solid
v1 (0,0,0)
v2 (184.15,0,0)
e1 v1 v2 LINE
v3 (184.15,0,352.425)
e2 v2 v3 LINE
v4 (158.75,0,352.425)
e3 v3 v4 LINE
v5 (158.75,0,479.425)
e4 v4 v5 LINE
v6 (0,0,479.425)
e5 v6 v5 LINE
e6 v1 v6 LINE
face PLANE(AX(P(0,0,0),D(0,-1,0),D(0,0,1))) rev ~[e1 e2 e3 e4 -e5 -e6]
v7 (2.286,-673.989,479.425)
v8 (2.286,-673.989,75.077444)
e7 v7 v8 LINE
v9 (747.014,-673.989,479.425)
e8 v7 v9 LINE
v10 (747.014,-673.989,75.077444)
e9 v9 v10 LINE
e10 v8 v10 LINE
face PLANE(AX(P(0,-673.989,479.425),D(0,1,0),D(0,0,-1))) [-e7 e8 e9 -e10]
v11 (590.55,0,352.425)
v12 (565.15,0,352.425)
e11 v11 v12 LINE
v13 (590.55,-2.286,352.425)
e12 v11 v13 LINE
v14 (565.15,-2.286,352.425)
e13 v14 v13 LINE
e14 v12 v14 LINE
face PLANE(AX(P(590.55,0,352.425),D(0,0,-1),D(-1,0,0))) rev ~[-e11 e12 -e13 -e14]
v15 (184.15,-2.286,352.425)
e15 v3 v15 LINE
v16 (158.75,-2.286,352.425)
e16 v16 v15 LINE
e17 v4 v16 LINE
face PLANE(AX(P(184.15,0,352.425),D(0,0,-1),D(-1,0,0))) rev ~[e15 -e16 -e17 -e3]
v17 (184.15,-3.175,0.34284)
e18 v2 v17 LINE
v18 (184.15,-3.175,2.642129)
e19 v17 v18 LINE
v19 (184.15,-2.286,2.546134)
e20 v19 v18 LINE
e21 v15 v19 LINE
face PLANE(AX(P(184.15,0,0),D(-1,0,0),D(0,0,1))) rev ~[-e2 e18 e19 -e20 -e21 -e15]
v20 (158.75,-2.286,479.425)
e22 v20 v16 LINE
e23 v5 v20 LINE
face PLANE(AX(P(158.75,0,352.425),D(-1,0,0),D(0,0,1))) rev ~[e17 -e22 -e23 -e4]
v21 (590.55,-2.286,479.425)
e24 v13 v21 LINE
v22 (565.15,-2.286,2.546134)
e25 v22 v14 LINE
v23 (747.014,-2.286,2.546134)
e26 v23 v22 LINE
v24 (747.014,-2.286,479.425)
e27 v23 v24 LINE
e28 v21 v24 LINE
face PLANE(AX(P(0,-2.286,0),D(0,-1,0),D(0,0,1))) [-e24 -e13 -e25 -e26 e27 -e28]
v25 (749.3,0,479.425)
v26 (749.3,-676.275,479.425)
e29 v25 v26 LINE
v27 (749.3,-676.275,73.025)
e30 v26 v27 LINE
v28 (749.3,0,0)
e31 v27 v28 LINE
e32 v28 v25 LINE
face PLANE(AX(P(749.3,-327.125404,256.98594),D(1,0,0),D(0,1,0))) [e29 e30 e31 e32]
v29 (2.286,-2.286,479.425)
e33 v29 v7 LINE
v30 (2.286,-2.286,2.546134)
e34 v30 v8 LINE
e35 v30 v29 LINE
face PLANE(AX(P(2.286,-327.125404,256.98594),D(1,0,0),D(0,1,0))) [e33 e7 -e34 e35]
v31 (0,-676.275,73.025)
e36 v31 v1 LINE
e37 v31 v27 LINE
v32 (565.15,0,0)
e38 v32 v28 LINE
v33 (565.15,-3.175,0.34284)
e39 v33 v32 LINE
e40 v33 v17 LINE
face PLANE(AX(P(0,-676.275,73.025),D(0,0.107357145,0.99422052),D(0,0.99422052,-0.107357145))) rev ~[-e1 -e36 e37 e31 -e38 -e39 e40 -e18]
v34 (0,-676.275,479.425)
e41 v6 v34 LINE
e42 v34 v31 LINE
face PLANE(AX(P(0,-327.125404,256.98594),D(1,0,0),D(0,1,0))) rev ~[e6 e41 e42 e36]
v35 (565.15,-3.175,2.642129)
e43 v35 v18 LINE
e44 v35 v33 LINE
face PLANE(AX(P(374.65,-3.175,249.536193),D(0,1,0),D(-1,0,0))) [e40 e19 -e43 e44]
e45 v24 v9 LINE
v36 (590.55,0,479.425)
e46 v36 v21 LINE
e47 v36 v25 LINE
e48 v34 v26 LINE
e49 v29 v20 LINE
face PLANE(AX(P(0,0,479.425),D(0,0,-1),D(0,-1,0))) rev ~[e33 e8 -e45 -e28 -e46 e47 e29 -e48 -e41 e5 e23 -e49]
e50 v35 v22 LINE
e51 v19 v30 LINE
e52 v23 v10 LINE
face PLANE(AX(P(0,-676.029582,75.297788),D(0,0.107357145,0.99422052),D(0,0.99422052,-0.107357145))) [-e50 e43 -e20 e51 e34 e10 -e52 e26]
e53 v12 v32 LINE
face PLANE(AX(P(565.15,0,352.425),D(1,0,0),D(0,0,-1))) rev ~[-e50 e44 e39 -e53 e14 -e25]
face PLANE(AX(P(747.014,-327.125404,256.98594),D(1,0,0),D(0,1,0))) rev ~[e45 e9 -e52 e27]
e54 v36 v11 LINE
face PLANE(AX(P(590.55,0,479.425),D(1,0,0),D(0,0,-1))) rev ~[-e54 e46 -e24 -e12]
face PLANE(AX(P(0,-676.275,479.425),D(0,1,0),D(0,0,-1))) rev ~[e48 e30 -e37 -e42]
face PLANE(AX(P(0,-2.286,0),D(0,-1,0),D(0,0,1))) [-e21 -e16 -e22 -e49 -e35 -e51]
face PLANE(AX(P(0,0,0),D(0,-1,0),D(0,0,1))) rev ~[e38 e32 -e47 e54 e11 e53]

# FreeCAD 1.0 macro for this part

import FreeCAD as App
import Part
import Sketcher

V = App.Vector
Q = App.Units.Quantity


def faces_at(feature, points):
    """Names of the faces that lie closest to the given points."""
    faces = feature.Shape.Faces
    near = lambda p: min(range(len(faces)), key=lambda i: faces[i].distToShape(Part.Vertex(*p))[0])
    return sorted({f"Face{near(p) + 1}" for p in points})


def add_polygon(sketch, points):
    """Adds a closed chain of lines whose ends are joined by coincident constraints."""
    first, n = sketch.GeometryCount, len(points)
    for a, b in zip(points, points[1:] + points[:1]):
        sketch.addGeometry(Part.LineSegment(App.Vector(*a, 0), App.Vector(*b, 0)), False)
    for i in range(n):
        sketch.addConstraint(Sketcher.Constraint("Coincident", first + i, 2, first + (i + 1) % n, 1))

doc = App.newDocument("Part")
params = doc.addObject("Spreadsheet::Sheet", "Params")
for row, (alias, value) in enumerate([
    ("sketch1_height", "16 in"),
    ("sketch1_width", "26.625 in"),
    ("sketch1_height2", "18.875 in"),
    ("pad1_length", "29.5 in"),
    ("thickness_wall", "0.09 in"),
    ("sketch2_width", "17 in"),
    ("sketch2_width2", "1 in"),
    ("sketch2_height", "5 in"),
    ("sketch2_height2", "13.875 in"),
    ("pocket1_length", "0.125 in"),
], start=1):
    params.set(f"A{row}", alias)
    params.set(f"B{row}", "=" + value)
    params.setAlias(f"B{row}", alias)

body = doc.addObject("PartDesign::Body", "Body")

# Sketch on YZ plane
sketch1 = body.newObject("Sketcher::SketchObject", "Sketch")
sketch1.AttachmentSupport = (doc.getObject("YZ_Plane"), [""])
sketch1.MapMode = "FlatFace"
add_polygon(sketch1, [(-676, 73), (0, 0), (0, 479), (-676, 479)])  # lines 0-3
sketch1.addConstraint(Sketcher.Constraint("Vertical", 1))
sketch1.addConstraint(Sketcher.Constraint("Horizontal", 2))
sketch1.addConstraint(Sketcher.Constraint("Vertical", 3))
sketch1.addConstraint(Sketcher.Constraint("Coincident", 0, 2, -1, 1))
sketch1.addConstraint(Sketcher.Constraint("DistanceY", 3, 2, 3, 1, Q("16 in")))
sketch1.addConstraint(Sketcher.Constraint("DistanceX", 2, 2, 2, 1, Q("26.625 in")))
sketch1.addConstraint(Sketcher.Constraint("DistanceY", 1, 1, 1, 2, Q("18.875 in")))
sketch1.setExpression("Constraints[8]", "Params.sketch1_height")
sketch1.setExpression("Constraints[9]", "Params.sketch1_width")
sketch1.setExpression("Constraints[10]", "Params.sketch1_height2")
pad1 = body.newObject("PartDesign::Pad", "Pad")
pad1.Profile = sketch1
pad1.setExpression("Length", "Params.pad1_length")
doc.recompute()

thickness = body.newObject("PartDesign::Thickness", "Thickness")
thickness.Base = (pad1, faces_at(pad1, [(374.65, -338.137, 479.425)]))
thickness.setExpression("Value", "Params.thickness_wall")
thickness.Reversed = True
thickness.Join = "Arc"

# Sketch on XZ plane
sketch2 = body.newObject("Sketcher::SketchObject", "Sketch001")
sketch2.AttachmentSupport = (doc.getObject("XZ_Plane"), [""])
sketch2.MapMode = "FlatFace"
add_polygon(sketch2, [(159, 479), (591, 479), (591, 352), (565, 352), (565, 0), (184, 0), (184, 352), (159, 352)])  # lines 0-7
sketch2.addConstraint(Sketcher.Constraint("Horizontal", 0))
sketch2.addConstraint(Sketcher.Constraint("Vertical", 1))
sketch2.addConstraint(Sketcher.Constraint("Horizontal", 2))
sketch2.addConstraint(Sketcher.Constraint("Vertical", 3))
sketch2.addConstraint(Sketcher.Constraint("Horizontal", 4))
sketch2.addConstraint(Sketcher.Constraint("Vertical", 5))
sketch2.addConstraint(Sketcher.Constraint("Horizontal", 6))
sketch2.addConstraint(Sketcher.Constraint("Vertical", 7))
sketch2.addConstraint(Sketcher.Constraint("PointOnObject", 3, 2, -1))
sketch2.addConstraint(Sketcher.Constraint("Horizontal", 2, 2, 5, 2))
sketch2.addConstraint(Sketcher.Constraint("Equal", 2, 6))
sketch2.addConstraint(Sketcher.Constraint("DistanceX", 0, 1, 0, 2, Q("17 in")))
sketch2.addConstraint(Sketcher.Constraint("DistanceX", 2, 2, 2, 1, Q("1 in")))
sketch2.addConstraint(Sketcher.Constraint("DistanceY", 1, 2, 1, 1, Q("5 in")))
sketch2.addConstraint(Sketcher.Constraint("DistanceY", 3, 2, 3, 1, Q("13.875 in")))
sketch2.addConstraint(Sketcher.Constraint("DistanceX", -1, 1, 0, 2, Q("23.25 in")))
sketch2.setExpression("Constraints[19]", "Params.sketch2_width")
sketch2.setExpression("Constraints[20]", "Params.sketch2_width2")
sketch2.setExpression("Constraints[21]", "Params.sketch2_height")
sketch2.setExpression("Constraints[22]", "Params.sketch2_height2")
pocket1 = body.newObject("PartDesign::Pocket", "Pocket")
pocket1.Profile = sketch2
pocket1.setExpression("Length", "Params.pocket1_length")
pocket1.Reversed = True

doc.recompute()
